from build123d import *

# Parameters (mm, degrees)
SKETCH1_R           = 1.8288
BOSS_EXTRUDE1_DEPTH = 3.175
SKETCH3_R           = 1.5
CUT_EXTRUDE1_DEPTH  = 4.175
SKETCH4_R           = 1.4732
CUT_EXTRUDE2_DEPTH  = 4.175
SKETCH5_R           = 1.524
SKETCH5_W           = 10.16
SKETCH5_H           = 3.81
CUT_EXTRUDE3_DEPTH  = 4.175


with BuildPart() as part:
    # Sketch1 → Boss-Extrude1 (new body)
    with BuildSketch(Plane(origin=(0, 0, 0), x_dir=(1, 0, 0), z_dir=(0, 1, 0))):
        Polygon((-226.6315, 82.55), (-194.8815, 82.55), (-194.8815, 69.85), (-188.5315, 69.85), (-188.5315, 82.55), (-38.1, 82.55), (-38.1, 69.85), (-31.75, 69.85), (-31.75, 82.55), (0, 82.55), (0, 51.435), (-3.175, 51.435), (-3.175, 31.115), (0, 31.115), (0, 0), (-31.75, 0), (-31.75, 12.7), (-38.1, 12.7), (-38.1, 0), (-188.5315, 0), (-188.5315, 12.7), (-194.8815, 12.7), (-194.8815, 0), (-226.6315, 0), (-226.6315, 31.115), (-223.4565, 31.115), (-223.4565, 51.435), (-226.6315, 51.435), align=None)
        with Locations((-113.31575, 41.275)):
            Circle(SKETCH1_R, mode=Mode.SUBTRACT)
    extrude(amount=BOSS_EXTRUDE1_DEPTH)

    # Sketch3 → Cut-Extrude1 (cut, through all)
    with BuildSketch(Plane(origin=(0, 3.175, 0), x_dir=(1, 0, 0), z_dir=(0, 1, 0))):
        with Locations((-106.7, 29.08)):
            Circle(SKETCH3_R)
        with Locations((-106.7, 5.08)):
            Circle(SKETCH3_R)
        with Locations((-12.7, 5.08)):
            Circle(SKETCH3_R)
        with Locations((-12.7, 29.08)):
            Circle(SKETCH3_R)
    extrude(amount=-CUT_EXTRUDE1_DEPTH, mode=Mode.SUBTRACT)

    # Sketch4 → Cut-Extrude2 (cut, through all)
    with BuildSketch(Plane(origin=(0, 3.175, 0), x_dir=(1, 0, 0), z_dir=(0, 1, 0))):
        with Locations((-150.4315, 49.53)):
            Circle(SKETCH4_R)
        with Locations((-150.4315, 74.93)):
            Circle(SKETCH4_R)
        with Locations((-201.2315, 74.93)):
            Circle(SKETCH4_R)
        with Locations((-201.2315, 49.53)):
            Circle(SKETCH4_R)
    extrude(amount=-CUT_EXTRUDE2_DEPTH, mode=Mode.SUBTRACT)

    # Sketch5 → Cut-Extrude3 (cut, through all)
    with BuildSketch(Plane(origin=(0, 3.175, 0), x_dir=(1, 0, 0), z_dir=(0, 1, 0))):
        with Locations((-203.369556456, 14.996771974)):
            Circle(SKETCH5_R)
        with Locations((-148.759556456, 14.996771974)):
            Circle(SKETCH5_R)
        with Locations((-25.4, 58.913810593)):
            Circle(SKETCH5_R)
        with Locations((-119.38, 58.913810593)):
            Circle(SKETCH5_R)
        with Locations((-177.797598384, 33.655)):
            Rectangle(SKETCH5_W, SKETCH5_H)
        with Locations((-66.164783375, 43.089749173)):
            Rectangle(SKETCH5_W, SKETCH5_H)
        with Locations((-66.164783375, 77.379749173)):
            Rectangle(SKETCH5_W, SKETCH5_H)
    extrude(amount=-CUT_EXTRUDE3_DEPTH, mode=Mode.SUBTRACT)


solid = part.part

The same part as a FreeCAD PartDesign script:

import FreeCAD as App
import Part
import Sketcher

V = App.Vector
Q = App.Units.Quantity

doc = App.newDocument("Part")
body = doc.addObject("PartDesign::Body", "Body")

# Sketch on XZ plane
sketch1 = doc.addObject("Sketcher::SketchObject", "Sketch")
body.addObject(sketch1)
sketch1.AttachmentSupport = (doc.XZ_Plane, [""])
sketch1.MapMode = "FlatFace"
sketch1.addGeometry(Part.LineSegment(V(-194.9, -82.5, 0), V(-226.6, -82.5, 0)), False)
sketch1.addGeometry(Part.LineSegment(V(-226.6, -82.5, 0), V(-226.6, -51.4, 0)), False)
sketch1.addGeometry(Part.LineSegment(V(-226.6, -51.4, 0), V(-223.5, -51.4, 0)), False)
sketch1.addGeometry(Part.LineSegment(V(-223.5, -51.4, 0), V(-223.5, -31.1, 0)), False)
sketch1.addGeometry(Part.LineSegment(V(-223.5, -31.1, 0), V(-226.6, -31.1, 0)), False)
sketch1.addGeometry(Part.LineSegment(V(-226.6, -31.1, 0), V(-226.6, 0, 0)), False)
sketch1.addGeometry(Part.LineSegment(V(-226.6, 0, 0), V(-194.9, 0, 0)), False)
sketch1.addGeometry(Part.LineSegment(V(-194.9, 0, 0), V(-194.9, -12.7, 0)), False)
sketch1.addGeometry(Part.LineSegment(V(-194.9, -12.7, 0), V(-188.5, -12.7, 0)), False)
sketch1.addGeometry(Part.LineSegment(V(-188.5, -12.7, 0), V(-188.5, 0, 0)), False)
sketch1.addGeometry(Part.LineSegment(V(-188.5, 0, 0), V(-38.1, 0, 0)), False)
sketch1.addGeometry(Part.LineSegment(V(-38.1, 0, 0), V(-38.1, -12.7, 0)), False)
sketch1.addGeometry(Part.LineSegment(V(-38.1, -12.7, 0), V(-31.8, -12.7, 0)), False)
sketch1.addGeometry(Part.LineSegment(V(-31.8, -12.7, 0), V(-31.8, 0, 0)), False)
sketch1.addGeometry(Part.LineSegment(V(-31.8, 0, 0), V(0, 0, 0)), False)
sketch1.addGeometry(Part.LineSegment(V(0, 0, 0), V(0, -31.1, 0)), False)
sketch1.addGeometry(Part.LineSegment(V(0, -31.1, 0), V(-3.2, -31.1, 0)), False)
sketch1.addGeometry(Part.LineSegment(V(-3.2, -31.1, 0), V(-3.2, -51.4, 0)), False)
sketch1.addGeometry(Part.LineSegment(V(-3.2, -51.4, 0), V(0, -51.4, 0)), False)
sketch1.addGeometry(Part.LineSegment(V(0, -51.4, 0), V(0, -82.5, 0)), False)
sketch1.addGeometry(Part.LineSegment(V(0, -82.5, 0), V(-31.8, -82.5, 0)), False)
sketch1.addGeometry(Part.LineSegment(V(-31.8, -82.5, 0), V(-31.8, -69.8, 0)), False)
sketch1.addGeometry(Part.LineSegment(V(-31.8, -69.8, 0), V(-38.1, -69.8, 0)), False)
sketch1.addGeometry(Part.LineSegment(V(-38.1, -69.8, 0), V(-38.1, -82.5, 0)), False)
sketch1.addGeometry(Part.LineSegment(V(-38.1, -82.5, 0), V(-188.5, -82.5, 0)), False)
sketch1.addGeometry(Part.LineSegment(V(-188.5, -82.5, 0), V(-188.5, -69.8, 0)), False)
sketch1.addGeometry(Part.LineSegment(V(-188.5, -69.8, 0), V(-194.9, -69.8, 0)), False)
sketch1.addGeometry(Part.LineSegment(V(-194.9, -69.8, 0), V(-194.9, -82.5, 0)), False)
sketch1.addGeometry(Part.Circle(V(-113.3, -41.3, 0), V(0, 0, 1), 1.8), False)
sketch1.addConstraint(Sketcher.Constraint("Coincident", 0, 2, 1, 1))
sketch1.addConstraint(Sketcher.Constraint("Coincident", 1, 2, 2, 1))
sketch1.addConstraint(Sketcher.Constraint("Coincident", 2, 2, 3, 1))
sketch1.addConstraint(Sketcher.Constraint("Coincident", 3, 2, 4, 1))
sketch1.addConstraint(Sketcher.Constraint("Coincident", 4, 2, 5, 1))
sketch1.addConstraint(Sketcher.Constraint("Coincident", 5, 2, 6, 1))
sketch1.addConstraint(Sketcher.Constraint("Coincident", 6, 2, 7, 1))
sketch1.addConstraint(Sketcher.Constraint("Coincident", 7, 2, 8, 1))
sketch1.addConstraint(Sketcher.Constraint("Coincident", 8, 2, 9, 1))
sketch1.addConstraint(Sketcher.Constraint("Coincident", 9, 2, 10, 1))
sketch1.addConstraint(Sketcher.Constraint("Coincident", 10, 2, 11, 1))
sketch1.addConstraint(Sketcher.Constraint("Coincident", 11, 2, 12, 1))
sketch1.addConstraint(Sketcher.Constraint("Coincident", 12, 2, 13, 1))
sketch1.addConstraint(Sketcher.Constraint("Coincident", 13, 2, 14, 1))
sketch1.addConstraint(Sketcher.Constraint("Coincident", 14, 2, 15, 1))
sketch1.addConstraint(Sketcher.Constraint("Coincident", 15, 2, 16, 1))
sketch1.addConstraint(Sketcher.Constraint("Coincident", 16, 2, 17, 1))
sketch1.addConstraint(Sketcher.Constraint("Coincident", 17, 2, 18, 1))
sketch1.addConstraint(Sketcher.Constraint("Coincident", 18, 2, 19, 1))
sketch1.addConstraint(Sketcher.Constraint("Coincident", 19, 2, 20, 1))
sketch1.addConstraint(Sketcher.Constraint("Coincident", 20, 2, 21, 1))
sketch1.addConstraint(Sketcher.Constraint("Coincident", 21, 2, 22, 1))
sketch1.addConstraint(Sketcher.Constraint("Coincident", 22, 2, 23, 1))
sketch1.addConstraint(Sketcher.Constraint("Coincident", 23, 2, 24, 1))
sketch1.addConstraint(Sketcher.Constraint("Coincident", 24, 2, 25, 1))
sketch1.addConstraint(Sketcher.Constraint("Coincident", 25, 2, 26, 1))
sketch1.addConstraint(Sketcher.Constraint("Coincident", 26, 2, 27, 1))
sketch1.addConstraint(Sketcher.Constraint("Coincident", 27, 2, 0, 1))
sketch1.addConstraint(Sketcher.Constraint("Horizontal", 0))
sketch1.addConstraint(Sketcher.Constraint("Vertical", 1))
sketch1.addConstraint(Sketcher.Constraint("Horizontal", 2))
sketch1.addConstraint(Sketcher.Constraint("Vertical", 3))
sketch1.addConstraint(Sketcher.Constraint("Horizontal", 4))
sketch1.addConstraint(Sketcher.Constraint("Vertical", 5))
sketch1.addConstraint(Sketcher.Constraint("Horizontal", 6))
sketch1.addConstraint(Sketcher.Constraint("Vertical", 7))
sketch1.addConstraint(Sketcher.Constraint("Horizontal", 8))
sketch1.addConstraint(Sketcher.Constraint("Vertical", 9))
sketch1.addConstraint(Sketcher.Constraint("Horizontal", 10))
sketch1.addConstraint(Sketcher.Constraint("Vertical", 11))
sketch1.addConstraint(Sketcher.Constraint("Horizontal", 12))
sketch1.addConstraint(Sketcher.Constraint("Vertical", 13))
sketch1.addConstraint(Sketcher.Constraint("Horizontal", 14))
sketch1.addConstraint(Sketcher.Constraint("Vertical", 15))
sketch1.addConstraint(Sketcher.Constraint("Horizontal", 16))
sketch1.addConstraint(Sketcher.Constraint("Vertical", 17))
sketch1.addConstraint(Sketcher.Constraint("Horizontal", 18))
sketch1.addConstraint(Sketcher.Constraint("Vertical", 19))
sketch1.addConstraint(Sketcher.Constraint("Horizontal", 20))
sketch1.addConstraint(Sketcher.Constraint("Vertical", 21))
sketch1.addConstraint(Sketcher.Constraint("Horizontal", 22))
sketch1.addConstraint(Sketcher.Constraint("Vertical", 23))
sketch1.addConstraint(Sketcher.Constraint("Horizontal", 24))
sketch1.addConstraint(Sketcher.Constraint("Vertical", 25))
sketch1.addConstraint(Sketcher.Constraint("Horizontal", 26))
sketch1.addConstraint(Sketcher.Constraint("Vertical", 27))
sketch1.addConstraint(Sketcher.Constraint("Coincident", 14, 2, -1, 1))
sketch1.addConstraint(Sketcher.Constraint("PointOnObject", 5, 2, -1))
sketch1.addConstraint(Sketcher.Constraint("PointOnObject", 9, 2, -1))
sketch1.addConstraint(Sketcher.Constraint("PointOnObject", 18, 2, -2))
sketch1.addConstraint(Sketcher.Constraint("Horizontal", 8, 2, 11, 2))
sketch1.addConstraint(Sketcher.Constraint("Horizontal", 4, 2, 15, 2))
sketch1.addConstraint(Sketcher.Constraint("Horizontal", 2, 2, 17, 2))
sketch1.addConstraint(Sketcher.Constraint("Horizontal", 0, 2, 19, 2))
sketch1.addConstraint(Sketcher.Constraint("Horizontal", 20, 2, 23, 2))
sketch1.addConstraint(Sketcher.Constraint("Horizontal", 22, 2, 25, 2))
sketch1.addConstraint(Sketcher.Constraint("Vertical", 1, 2, 4, 2))
sketch1.addConstraint(Sketcher.Constraint("Vertical", 13, 2, 20, 2))
sketch1.addConstraint(Sketcher.Constraint("Vertical", 11, 2, 22, 2))
sketch1.addConstraint(Sketcher.Constraint("Vertical", 9, 2, 24, 2))
sketch1.addConstraint(Sketcher.Constraint("Vertical", 7, 2, 26, 2))
sketch1.addConstraint(Sketcher.Constraint("Equal", 8, 12))
sketch1.addConstraint(Sketcher.Constraint("Equal", 6, 14))
sketch1.addConstraint(Sketcher.Constraint("Equal", 4, 16))
sketch1.addConstraint(Sketcher.Constraint("Equal", 1, 5))
sketch1.addConstraint(Sketcher.Constraint("Equal", 13, 21))
sketch1.addConstraint(Sketcher.Constraint("Diameter", 28, Q("0.144 in")))
sketch1.addConstraint(Sketcher.Constraint("DistanceY", 3, 1, 3, 2, Q("0.8 in")))
sketch1.addConstraint(Sketcher.Constraint("DistanceY", 7, 2, 7, 1, Q("0.5 in")))
sketch1.addConstraint(Sketcher.Constraint("DistanceX", 0, 2, 0, 1, Q("1.25 in")))
sketch1.addConstraint(Sketcher.Constraint("DistanceX", 8, 1, 8, 2, Q("0.25 in")))
sketch1.addConstraint(Sketcher.Constraint("DistanceY", 1, 2, 28, 3, Q("0.4 in")))
sketch1.addConstraint(Sketcher.Constraint("DistanceX", 2, 1, 2, 2, Q("0.125 in")))
sketch1.addConstraint(Sketcher.Constraint("DistanceY", 1, 1, 1, 2, Q("1.225 in")))
sketch1.addConstraint(Sketcher.Constraint("DistanceX", 10, 1, 10, 2, Q("5.9225 in")))
sketch1.addConstraint(Sketcher.Constraint("DistanceX", 28, 3, -1, 1, Q("113.31575 mm")))
pad1 = doc.addObject("PartDesign::Pad", "Pad")
body.addObject(pad1)
pad1.Profile = sketch1
pad1.Length = Q("0.125 in")
pad1.Reversed = True

# Sketch on XZ plane
sketch2 = doc.addObject("Sketcher::SketchObject", "Sketch001")
body.addObject(sketch2)
sketch2.AttachmentSupport = (doc.XZ_Plane, [""])
sketch2.MapMode = "FlatFace"
sketch2.AttachmentOffset = App.Placement(V(0, 0, -0.125 * 25.4), App.Rotation())
sketch2.addGeometry(Part.Circle(V(-106.7, -29.1, 0), V(0, 0, 1), 1.5), False)
sketch2.addGeometry(Part.Circle(V(-106.7, -5.1, 0), V(0, 0, 1), 1.5), False)
sketch2.addGeometry(Part.Circle(V(-12.7, -5.1, 0), V(0, 0, 1), 1.5), False)
sketch2.addGeometry(Part.Circle(V(-12.7, -29.1, 0), V(0, 0, 1), 1.5), False)
sketch2.addConstraint(Sketcher.Constraint("Equal", 0, 1))
sketch2.addConstraint(Sketcher.Constraint("Equal", 1, 2))
sketch2.addConstraint(Sketcher.Constraint("Equal", 2, 3))
sketch2.addConstraint(Sketcher.Constraint("Horizontal", 1, 3, 2, 3))
sketch2.addConstraint(Sketcher.Constraint("Horizontal", 0, 3, 3, 3))
sketch2.addConstraint(Sketcher.Constraint("Vertical", 0, 3, 1, 3))
sketch2.addConstraint(Sketcher.Constraint("Vertical", 2, 3, 3, 3))
sketch2.addConstraint(Sketcher.Constraint("DistanceY", 1, 3, -1, 1, Q("0.2 in")))
sketch2.addConstraint(Sketcher.Constraint("DistanceX", 2, 3, -1, 1, Q("0.5 in")))
sketch2.addConstraint(Sketcher.Constraint("Diameter", 0, Q("3 mm")))
sketch2.addConstraint(Sketcher.Constraint("DistanceX", 0, 3, -1, 1, Q("106.7 mm")))
sketch2.addConstraint(Sketcher.Constraint("DistanceY", 0, 3, -1, 1, Q("29.08 mm")))
pocket1 = doc.addObject("PartDesign::Pocket", "Pocket")
body.addObject(pocket1)
pocket1.Profile = sketch2
pocket1.Type = "ThroughAll"
pocket1.Reversed = True

# Sketch on XZ plane
sketch3 = doc.addObject("Sketcher::SketchObject", "Sketch002")
body.addObject(sketch3)
sketch3.AttachmentSupport = (doc.XZ_Plane, [""])
sketch3.MapMode = "FlatFace"
sketch3.AttachmentOffset = App.Placement(V(0, 0, -0.125 * 25.4), App.Rotation())
sketch3.addGeometry(Part.Circle(V(-150.4, -49.5, 0), V(0, 0, 1), 1.5), False)
sketch3.addGeometry(Part.Circle(V(-150.4, -74.9, 0), V(0, 0, 1), 1.5), False)
sketch3.addGeometry(Part.Circle(V(-201.2, -74.9, 0), V(0, 0, 1), 1.5), False)
sketch3.addGeometry(Part.Circle(V(-201.2, -49.5, 0), V(0, 0, 1), 1.5), False)
sketch3.addConstraint(Sketcher.Constraint("Equal", 0, 1))
sketch3.addConstraint(Sketcher.Constraint("Equal", 1, 2))
sketch3.addConstraint(Sketcher.Constraint("Equal", 2, 3))
sketch3.addConstraint(Sketcher.Constraint("Horizontal", 1, 3, 2, 3))
sketch3.addConstraint(Sketcher.Constraint("Horizontal", 0, 3, 3, 3))
sketch3.addConstraint(Sketcher.Constraint("Vertical", 0, 3, 1, 3))
sketch3.addConstraint(Sketcher.Constraint("Vertical", 2, 3, 3, 3))
sketch3.addConstraint(Sketcher.Constraint("Diameter", 0, Q("0.116 in")))
sketch3.addConstraint(Sketcher.Constraint("DistanceY", 1, 3, 0, 3, Q("1 in")))
sketch3.addConstraint(Sketcher.Constraint("DistanceX", 2, 3, 1, 3, Q("2 in")))
sketch3.addConstraint(Sketcher.Constraint("DistanceY", 0, 3, -1, 1, Q("1.95 in")))
sketch3.addConstraint(Sketcher.Constraint("DistanceX", 0, 3, -1, 1, Q("5.9225 in")))
pocket2 = doc.addObject("PartDesign::Pocket", "Pocket001")
body.addObject(pocket2)
pocket2.Profile = sketch3
pocket2.Type = "ThroughAll"
pocket2.Reversed = True

# Sketch on XZ plane
sketch4 = doc.addObject("Sketcher::SketchObject", "Sketch003")
body.addObject(sketch4)
sketch4.AttachmentSupport = (doc.XZ_Plane, [""])
sketch4.MapMode = "FlatFace"
sketch4.AttachmentOffset = App.Placement(V(0, 0, -0.125 * 25.4), App.Rotation())
sketch4.addGeometry(Part.Circle(V(-203.4, -15, 0), V(0, 0, 1), 1.5), False)
sketch4.addGeometry(Part.Circle(V(-148.8, -15, 0), V(0, 0, 1), 1.5), False)
sketch4.addGeometry(Part.Circle(V(-25.4, -58.9, 0), V(0, 0, 1), 1.5), False)
sketch4.addGeometry(Part.Circle(V(-119.4, -58.9, 0), V(0, 0, 1), 1.5), False)
sketch4.addGeometry(Part.LineSegment(V(-182.9, -35.6, 0), V(-182.9, -31.8, 0)), False)
sketch4.addGeometry(Part.LineSegment(V(-182.9, -31.8, 0), V(-172.7, -31.8, 0)), False)
sketch4.addGeometry(Part.LineSegment(V(-172.7, -31.8, 0), V(-172.7, -35.6, 0)), False)
sketch4.addGeometry(Part.LineSegment(V(-172.7, -35.6, 0), V(-182.9, -35.6, 0)), False)
sketch4.addGeometry(Part.LineSegment(V(-71.2, -45, 0), V(-71.2, -41.2, 0)), False)
sketch4.addGeometry(Part.LineSegment(V(-71.2, -41.2, 0), V(-61.1, -41.2, 0)), False)
sketch4.addGeometry(Part.LineSegment(V(-61.1, -41.2, 0), V(-61.1, -45, 0)), False)
sketch4.addGeometry(Part.LineSegment(V(-61.1, -45, 0), V(-71.2, -45, 0)), False)
sketch4.addGeometry(Part.LineSegment(V(-71.2, -79.3, 0), V(-71.2, -75.5, 0)), False)
sketch4.addGeometry(Part.LineSegment(V(-71.2, -75.5, 0), V(-61.1, -75.5, 0)), False)
sketch4.addGeometry(Part.LineSegment(V(-61.1, -75.5, 0), V(-61.1, -79.3, 0)), False)
sketch4.addGeometry(Part.LineSegment(V(-61.1, -79.3, 0), V(-71.2, -79.3, 0)), False)
sketch4.addConstraint(Sketcher.Constraint("Coincident", 4, 2, 5, 1))
sketch4.addConstraint(Sketcher.Constraint("Coincident", 5, 2, 6, 1))
sketch4.addConstraint(Sketcher.Constraint("Coincident", 6, 2, 7, 1))
sketch4.addConstraint(Sketcher.Constraint("Coincident", 7, 2, 4, 1))
sketch4.addConstraint(Sketcher.Constraint("Coincident", 8, 2, 9, 1))
sketch4.addConstraint(Sketcher.Constraint("Coincident", 9, 2, 10, 1))
sketch4.addConstraint(Sketcher.Constraint("Coincident", 10, 2, 11, 1))
sketch4.addConstraint(Sketcher.Constraint("Coincident", 11, 2, 8, 1))
sketch4.addConstraint(Sketcher.Constraint("Coincident", 12, 2, 13, 1))
sketch4.addConstraint(Sketcher.Constraint("Coincident", 13, 2, 14, 1))
sketch4.addConstraint(Sketcher.Constraint("Coincident", 14, 2, 15, 1))
sketch4.addConstraint(Sketcher.Constraint("Coincident", 15, 2, 12, 1))
sketch4.addConstraint(Sketcher.Constraint("Vertical", 4))
sketch4.addConstraint(Sketcher.Constraint("Horizontal", 5))
sketch4.addConstraint(Sketcher.Constraint("Vertical", 6))
sketch4.addConstraint(Sketcher.Constraint("Horizontal", 7))
sketch4.addConstraint(Sketcher.Constraint("Vertical", 8))
sketch4.addConstraint(Sketcher.Constraint("Horizontal", 9))
sketch4.addConstraint(Sketcher.Constraint("Vertical", 10))
sketch4.addConstraint(Sketcher.Constraint("Horizontal", 11))
sketch4.addConstraint(Sketcher.Constraint("Vertical", 12))
sketch4.addConstraint(Sketcher.Constraint("Horizontal", 13))
sketch4.addConstraint(Sketcher.Constraint("Vertical", 14))
sketch4.addConstraint(Sketcher.Constraint("Horizontal", 15))
sketch4.addConstraint(Sketcher.Constraint("Equal", 0, 1))
sketch4.addConstraint(Sketcher.Constraint("Equal", 1, 2))
sketch4.addConstraint(Sketcher.Constraint("Equal", 2, 3))
sketch4.addConstraint(Sketcher.Constraint("Horizontal", 0, 3, 1, 3))
sketch4.addConstraint(Sketcher.Constraint("Horizontal", 2, 3, 3, 3))
sketch4.addConstraint(Sketcher.Constraint("Vertical", 11, 2, 12, 2))
sketch4.addConstraint(Sketcher.Constraint("Vertical", 10, 2, 13, 2))
sketch4.addConstraint(Sketcher.Constraint("Equal", 7, 9))
sketch4.addConstraint(Sketcher.Constraint("Equal", 6, 8))
sketch4.addConstraint(Sketcher.Constraint("Equal", 10, 12))
sketch4.addConstraint(Sketcher.Constraint("Diameter", 0, Q("0.12 in")))
sketch4.addConstraint(Sketcher.Constraint("DistanceX", 5, 1, 5, 2, Q("0.4 in")))
sketch4.addConstraint(Sketcher.Constraint("DistanceX", 2, 3, -1, 1, Q("1 in")))
sketch4.addConstraint(Sketcher.Constraint("DistanceY", 4, 1, 4, 2, Q("0.15 in")))
sketch4.addConstraint(Sketcher.Constraint("DistanceX", 3, 3, -1, 1, Q("4.7 in")))
sketch4.addConstraint(Sketcher.Constraint("DistanceY", 6, 2, -1, 1, Q("1.4 in")))
sketch4.addConstraint(Sketcher.Constraint("DistanceY", 12, 2, 11, 2, Q("1.2 in")))
sketch4.addConstraint(Sketcher.Constraint("DistanceX", 0, 3, 1, 3, Q("2.15 in")))
sketch4.addConstraint(Sketcher.Constraint("DistanceX", 4, 2, -1, 1, Q("182.877598 mm")))
sketch4.addConstraint(Sketcher.Constraint("DistanceY", 0, 3, -1, 1, Q("14.996772 mm")))
sketch4.addConstraint(Sketcher.Constraint("DistanceY", 2, 3, -1, 1, Q("58.913811 mm")))
sketch4.addConstraint(Sketcher.Constraint("DistanceY", 8, 2, -1, 1, Q("41.184749 mm")))
sketch4.addConstraint(Sketcher.Constraint("DistanceX", 0, 3, 4, 2, Q("20.491958 mm")))
sketch4.addConstraint(Sketcher.Constraint("DistanceX", 8, 2, -1, 1, Q("71.244783 mm")))
pocket3 = doc.addObject("PartDesign::Pocket", "Pocket002")
body.addObject(pocket3)
pocket3.Profile = sketch4
pocket3.Type = "ThroughAll"
pocket3.Reversed = True

doc.recompute()
